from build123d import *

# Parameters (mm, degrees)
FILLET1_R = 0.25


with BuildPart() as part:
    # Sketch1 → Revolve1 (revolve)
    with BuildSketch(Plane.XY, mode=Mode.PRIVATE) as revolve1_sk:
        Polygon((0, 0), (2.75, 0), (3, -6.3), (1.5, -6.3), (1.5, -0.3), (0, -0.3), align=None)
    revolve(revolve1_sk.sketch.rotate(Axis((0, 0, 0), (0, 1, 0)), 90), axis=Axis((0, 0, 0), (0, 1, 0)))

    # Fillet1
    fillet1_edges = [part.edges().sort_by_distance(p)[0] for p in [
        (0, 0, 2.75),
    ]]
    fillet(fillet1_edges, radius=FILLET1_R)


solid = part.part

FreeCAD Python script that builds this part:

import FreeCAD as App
import Part
import Sketcher

V = App.Vector


def edges_at(feature, points):
    """Names of the edges that pass closest to the given points."""
    edges = feature.Shape.Edges
    near = lambda p: min(range(len(edges)), key=lambda i: edges[i].distToShape(Part.Vertex(*p))[0])
    return sorted({f"Edge{near(p) + 1}" for p in points})


def add_polygon(sketch, points):
    """Adds a closed chain of lines whose ends are joined by coincident constraints."""
    first, n = sketch.GeometryCount, len(points)
    for a, b in zip(points, points[1:] + points[:1]):
        sketch.addGeometry(Part.LineSegment(App.Vector(*a, 0), App.Vector(*b, 0)), False)
    for i in range(n):
        sketch.addConstraint(Sketcher.Constraint("Coincident", first + i, 2, first + (i + 1) % n, 1))

doc = App.newDocument("Part")
body = doc.addObject("PartDesign::Body", "Body")

# Sketch on XY plane
sketch1 = body.newObject("Sketcher::SketchObject", "Sketch")
sketch1.AttachmentSupport = (doc.getObject("XY_Plane"), [""])
sketch1.MapMode = "FlatFace"
add_polygon(sketch1, [(2.75, 0), (0, 0), (0, -0.3), (1.5, -0.3), (1.5, -6.3), (3, -6.3)])  # lines 0-5
sketch1.addConstraint([
    Sketcher.Constraint("Horizontal", 0),
    Sketcher.Constraint("Vertical", 1),
    Sketcher.Constraint("Horizontal", 2),
    Sketcher.Constraint("Vertical", 3),
    Sketcher.Constraint("Horizontal", 4),
    Sketcher.Constraint("Coincident", 0, 2, -1, 1),
    Sketcher.Constraint("Equal", 2, 4),
    Sketcher.Constraint("DistanceY", 3, 2, 3, 1, 6.0),
    Sketcher.Constraint("DistanceX", 2, 1, 2, 2, 1.5),
    Sketcher.Constraint("DistanceY", 1, 2, 1, 1, 0.3),
    Sketcher.Constraint("DistanceX", 0, 2, 0, 1, 2.75),
])
revolution = body.newObject("PartDesign::Revolution", "Revolution")
revolution.Profile = sketch1
revolution.ReferenceAxis = (sketch1, ["V_Axis"])
revolution.Angle = 360
doc.recompute()

fillet = body.newObject("PartDesign::Fillet", "Fillet")
fillet.Base = (revolution, edges_at(revolution, [(0, 0, 2.75)]))
fillet.Radius = 0.25

doc.recompute()
